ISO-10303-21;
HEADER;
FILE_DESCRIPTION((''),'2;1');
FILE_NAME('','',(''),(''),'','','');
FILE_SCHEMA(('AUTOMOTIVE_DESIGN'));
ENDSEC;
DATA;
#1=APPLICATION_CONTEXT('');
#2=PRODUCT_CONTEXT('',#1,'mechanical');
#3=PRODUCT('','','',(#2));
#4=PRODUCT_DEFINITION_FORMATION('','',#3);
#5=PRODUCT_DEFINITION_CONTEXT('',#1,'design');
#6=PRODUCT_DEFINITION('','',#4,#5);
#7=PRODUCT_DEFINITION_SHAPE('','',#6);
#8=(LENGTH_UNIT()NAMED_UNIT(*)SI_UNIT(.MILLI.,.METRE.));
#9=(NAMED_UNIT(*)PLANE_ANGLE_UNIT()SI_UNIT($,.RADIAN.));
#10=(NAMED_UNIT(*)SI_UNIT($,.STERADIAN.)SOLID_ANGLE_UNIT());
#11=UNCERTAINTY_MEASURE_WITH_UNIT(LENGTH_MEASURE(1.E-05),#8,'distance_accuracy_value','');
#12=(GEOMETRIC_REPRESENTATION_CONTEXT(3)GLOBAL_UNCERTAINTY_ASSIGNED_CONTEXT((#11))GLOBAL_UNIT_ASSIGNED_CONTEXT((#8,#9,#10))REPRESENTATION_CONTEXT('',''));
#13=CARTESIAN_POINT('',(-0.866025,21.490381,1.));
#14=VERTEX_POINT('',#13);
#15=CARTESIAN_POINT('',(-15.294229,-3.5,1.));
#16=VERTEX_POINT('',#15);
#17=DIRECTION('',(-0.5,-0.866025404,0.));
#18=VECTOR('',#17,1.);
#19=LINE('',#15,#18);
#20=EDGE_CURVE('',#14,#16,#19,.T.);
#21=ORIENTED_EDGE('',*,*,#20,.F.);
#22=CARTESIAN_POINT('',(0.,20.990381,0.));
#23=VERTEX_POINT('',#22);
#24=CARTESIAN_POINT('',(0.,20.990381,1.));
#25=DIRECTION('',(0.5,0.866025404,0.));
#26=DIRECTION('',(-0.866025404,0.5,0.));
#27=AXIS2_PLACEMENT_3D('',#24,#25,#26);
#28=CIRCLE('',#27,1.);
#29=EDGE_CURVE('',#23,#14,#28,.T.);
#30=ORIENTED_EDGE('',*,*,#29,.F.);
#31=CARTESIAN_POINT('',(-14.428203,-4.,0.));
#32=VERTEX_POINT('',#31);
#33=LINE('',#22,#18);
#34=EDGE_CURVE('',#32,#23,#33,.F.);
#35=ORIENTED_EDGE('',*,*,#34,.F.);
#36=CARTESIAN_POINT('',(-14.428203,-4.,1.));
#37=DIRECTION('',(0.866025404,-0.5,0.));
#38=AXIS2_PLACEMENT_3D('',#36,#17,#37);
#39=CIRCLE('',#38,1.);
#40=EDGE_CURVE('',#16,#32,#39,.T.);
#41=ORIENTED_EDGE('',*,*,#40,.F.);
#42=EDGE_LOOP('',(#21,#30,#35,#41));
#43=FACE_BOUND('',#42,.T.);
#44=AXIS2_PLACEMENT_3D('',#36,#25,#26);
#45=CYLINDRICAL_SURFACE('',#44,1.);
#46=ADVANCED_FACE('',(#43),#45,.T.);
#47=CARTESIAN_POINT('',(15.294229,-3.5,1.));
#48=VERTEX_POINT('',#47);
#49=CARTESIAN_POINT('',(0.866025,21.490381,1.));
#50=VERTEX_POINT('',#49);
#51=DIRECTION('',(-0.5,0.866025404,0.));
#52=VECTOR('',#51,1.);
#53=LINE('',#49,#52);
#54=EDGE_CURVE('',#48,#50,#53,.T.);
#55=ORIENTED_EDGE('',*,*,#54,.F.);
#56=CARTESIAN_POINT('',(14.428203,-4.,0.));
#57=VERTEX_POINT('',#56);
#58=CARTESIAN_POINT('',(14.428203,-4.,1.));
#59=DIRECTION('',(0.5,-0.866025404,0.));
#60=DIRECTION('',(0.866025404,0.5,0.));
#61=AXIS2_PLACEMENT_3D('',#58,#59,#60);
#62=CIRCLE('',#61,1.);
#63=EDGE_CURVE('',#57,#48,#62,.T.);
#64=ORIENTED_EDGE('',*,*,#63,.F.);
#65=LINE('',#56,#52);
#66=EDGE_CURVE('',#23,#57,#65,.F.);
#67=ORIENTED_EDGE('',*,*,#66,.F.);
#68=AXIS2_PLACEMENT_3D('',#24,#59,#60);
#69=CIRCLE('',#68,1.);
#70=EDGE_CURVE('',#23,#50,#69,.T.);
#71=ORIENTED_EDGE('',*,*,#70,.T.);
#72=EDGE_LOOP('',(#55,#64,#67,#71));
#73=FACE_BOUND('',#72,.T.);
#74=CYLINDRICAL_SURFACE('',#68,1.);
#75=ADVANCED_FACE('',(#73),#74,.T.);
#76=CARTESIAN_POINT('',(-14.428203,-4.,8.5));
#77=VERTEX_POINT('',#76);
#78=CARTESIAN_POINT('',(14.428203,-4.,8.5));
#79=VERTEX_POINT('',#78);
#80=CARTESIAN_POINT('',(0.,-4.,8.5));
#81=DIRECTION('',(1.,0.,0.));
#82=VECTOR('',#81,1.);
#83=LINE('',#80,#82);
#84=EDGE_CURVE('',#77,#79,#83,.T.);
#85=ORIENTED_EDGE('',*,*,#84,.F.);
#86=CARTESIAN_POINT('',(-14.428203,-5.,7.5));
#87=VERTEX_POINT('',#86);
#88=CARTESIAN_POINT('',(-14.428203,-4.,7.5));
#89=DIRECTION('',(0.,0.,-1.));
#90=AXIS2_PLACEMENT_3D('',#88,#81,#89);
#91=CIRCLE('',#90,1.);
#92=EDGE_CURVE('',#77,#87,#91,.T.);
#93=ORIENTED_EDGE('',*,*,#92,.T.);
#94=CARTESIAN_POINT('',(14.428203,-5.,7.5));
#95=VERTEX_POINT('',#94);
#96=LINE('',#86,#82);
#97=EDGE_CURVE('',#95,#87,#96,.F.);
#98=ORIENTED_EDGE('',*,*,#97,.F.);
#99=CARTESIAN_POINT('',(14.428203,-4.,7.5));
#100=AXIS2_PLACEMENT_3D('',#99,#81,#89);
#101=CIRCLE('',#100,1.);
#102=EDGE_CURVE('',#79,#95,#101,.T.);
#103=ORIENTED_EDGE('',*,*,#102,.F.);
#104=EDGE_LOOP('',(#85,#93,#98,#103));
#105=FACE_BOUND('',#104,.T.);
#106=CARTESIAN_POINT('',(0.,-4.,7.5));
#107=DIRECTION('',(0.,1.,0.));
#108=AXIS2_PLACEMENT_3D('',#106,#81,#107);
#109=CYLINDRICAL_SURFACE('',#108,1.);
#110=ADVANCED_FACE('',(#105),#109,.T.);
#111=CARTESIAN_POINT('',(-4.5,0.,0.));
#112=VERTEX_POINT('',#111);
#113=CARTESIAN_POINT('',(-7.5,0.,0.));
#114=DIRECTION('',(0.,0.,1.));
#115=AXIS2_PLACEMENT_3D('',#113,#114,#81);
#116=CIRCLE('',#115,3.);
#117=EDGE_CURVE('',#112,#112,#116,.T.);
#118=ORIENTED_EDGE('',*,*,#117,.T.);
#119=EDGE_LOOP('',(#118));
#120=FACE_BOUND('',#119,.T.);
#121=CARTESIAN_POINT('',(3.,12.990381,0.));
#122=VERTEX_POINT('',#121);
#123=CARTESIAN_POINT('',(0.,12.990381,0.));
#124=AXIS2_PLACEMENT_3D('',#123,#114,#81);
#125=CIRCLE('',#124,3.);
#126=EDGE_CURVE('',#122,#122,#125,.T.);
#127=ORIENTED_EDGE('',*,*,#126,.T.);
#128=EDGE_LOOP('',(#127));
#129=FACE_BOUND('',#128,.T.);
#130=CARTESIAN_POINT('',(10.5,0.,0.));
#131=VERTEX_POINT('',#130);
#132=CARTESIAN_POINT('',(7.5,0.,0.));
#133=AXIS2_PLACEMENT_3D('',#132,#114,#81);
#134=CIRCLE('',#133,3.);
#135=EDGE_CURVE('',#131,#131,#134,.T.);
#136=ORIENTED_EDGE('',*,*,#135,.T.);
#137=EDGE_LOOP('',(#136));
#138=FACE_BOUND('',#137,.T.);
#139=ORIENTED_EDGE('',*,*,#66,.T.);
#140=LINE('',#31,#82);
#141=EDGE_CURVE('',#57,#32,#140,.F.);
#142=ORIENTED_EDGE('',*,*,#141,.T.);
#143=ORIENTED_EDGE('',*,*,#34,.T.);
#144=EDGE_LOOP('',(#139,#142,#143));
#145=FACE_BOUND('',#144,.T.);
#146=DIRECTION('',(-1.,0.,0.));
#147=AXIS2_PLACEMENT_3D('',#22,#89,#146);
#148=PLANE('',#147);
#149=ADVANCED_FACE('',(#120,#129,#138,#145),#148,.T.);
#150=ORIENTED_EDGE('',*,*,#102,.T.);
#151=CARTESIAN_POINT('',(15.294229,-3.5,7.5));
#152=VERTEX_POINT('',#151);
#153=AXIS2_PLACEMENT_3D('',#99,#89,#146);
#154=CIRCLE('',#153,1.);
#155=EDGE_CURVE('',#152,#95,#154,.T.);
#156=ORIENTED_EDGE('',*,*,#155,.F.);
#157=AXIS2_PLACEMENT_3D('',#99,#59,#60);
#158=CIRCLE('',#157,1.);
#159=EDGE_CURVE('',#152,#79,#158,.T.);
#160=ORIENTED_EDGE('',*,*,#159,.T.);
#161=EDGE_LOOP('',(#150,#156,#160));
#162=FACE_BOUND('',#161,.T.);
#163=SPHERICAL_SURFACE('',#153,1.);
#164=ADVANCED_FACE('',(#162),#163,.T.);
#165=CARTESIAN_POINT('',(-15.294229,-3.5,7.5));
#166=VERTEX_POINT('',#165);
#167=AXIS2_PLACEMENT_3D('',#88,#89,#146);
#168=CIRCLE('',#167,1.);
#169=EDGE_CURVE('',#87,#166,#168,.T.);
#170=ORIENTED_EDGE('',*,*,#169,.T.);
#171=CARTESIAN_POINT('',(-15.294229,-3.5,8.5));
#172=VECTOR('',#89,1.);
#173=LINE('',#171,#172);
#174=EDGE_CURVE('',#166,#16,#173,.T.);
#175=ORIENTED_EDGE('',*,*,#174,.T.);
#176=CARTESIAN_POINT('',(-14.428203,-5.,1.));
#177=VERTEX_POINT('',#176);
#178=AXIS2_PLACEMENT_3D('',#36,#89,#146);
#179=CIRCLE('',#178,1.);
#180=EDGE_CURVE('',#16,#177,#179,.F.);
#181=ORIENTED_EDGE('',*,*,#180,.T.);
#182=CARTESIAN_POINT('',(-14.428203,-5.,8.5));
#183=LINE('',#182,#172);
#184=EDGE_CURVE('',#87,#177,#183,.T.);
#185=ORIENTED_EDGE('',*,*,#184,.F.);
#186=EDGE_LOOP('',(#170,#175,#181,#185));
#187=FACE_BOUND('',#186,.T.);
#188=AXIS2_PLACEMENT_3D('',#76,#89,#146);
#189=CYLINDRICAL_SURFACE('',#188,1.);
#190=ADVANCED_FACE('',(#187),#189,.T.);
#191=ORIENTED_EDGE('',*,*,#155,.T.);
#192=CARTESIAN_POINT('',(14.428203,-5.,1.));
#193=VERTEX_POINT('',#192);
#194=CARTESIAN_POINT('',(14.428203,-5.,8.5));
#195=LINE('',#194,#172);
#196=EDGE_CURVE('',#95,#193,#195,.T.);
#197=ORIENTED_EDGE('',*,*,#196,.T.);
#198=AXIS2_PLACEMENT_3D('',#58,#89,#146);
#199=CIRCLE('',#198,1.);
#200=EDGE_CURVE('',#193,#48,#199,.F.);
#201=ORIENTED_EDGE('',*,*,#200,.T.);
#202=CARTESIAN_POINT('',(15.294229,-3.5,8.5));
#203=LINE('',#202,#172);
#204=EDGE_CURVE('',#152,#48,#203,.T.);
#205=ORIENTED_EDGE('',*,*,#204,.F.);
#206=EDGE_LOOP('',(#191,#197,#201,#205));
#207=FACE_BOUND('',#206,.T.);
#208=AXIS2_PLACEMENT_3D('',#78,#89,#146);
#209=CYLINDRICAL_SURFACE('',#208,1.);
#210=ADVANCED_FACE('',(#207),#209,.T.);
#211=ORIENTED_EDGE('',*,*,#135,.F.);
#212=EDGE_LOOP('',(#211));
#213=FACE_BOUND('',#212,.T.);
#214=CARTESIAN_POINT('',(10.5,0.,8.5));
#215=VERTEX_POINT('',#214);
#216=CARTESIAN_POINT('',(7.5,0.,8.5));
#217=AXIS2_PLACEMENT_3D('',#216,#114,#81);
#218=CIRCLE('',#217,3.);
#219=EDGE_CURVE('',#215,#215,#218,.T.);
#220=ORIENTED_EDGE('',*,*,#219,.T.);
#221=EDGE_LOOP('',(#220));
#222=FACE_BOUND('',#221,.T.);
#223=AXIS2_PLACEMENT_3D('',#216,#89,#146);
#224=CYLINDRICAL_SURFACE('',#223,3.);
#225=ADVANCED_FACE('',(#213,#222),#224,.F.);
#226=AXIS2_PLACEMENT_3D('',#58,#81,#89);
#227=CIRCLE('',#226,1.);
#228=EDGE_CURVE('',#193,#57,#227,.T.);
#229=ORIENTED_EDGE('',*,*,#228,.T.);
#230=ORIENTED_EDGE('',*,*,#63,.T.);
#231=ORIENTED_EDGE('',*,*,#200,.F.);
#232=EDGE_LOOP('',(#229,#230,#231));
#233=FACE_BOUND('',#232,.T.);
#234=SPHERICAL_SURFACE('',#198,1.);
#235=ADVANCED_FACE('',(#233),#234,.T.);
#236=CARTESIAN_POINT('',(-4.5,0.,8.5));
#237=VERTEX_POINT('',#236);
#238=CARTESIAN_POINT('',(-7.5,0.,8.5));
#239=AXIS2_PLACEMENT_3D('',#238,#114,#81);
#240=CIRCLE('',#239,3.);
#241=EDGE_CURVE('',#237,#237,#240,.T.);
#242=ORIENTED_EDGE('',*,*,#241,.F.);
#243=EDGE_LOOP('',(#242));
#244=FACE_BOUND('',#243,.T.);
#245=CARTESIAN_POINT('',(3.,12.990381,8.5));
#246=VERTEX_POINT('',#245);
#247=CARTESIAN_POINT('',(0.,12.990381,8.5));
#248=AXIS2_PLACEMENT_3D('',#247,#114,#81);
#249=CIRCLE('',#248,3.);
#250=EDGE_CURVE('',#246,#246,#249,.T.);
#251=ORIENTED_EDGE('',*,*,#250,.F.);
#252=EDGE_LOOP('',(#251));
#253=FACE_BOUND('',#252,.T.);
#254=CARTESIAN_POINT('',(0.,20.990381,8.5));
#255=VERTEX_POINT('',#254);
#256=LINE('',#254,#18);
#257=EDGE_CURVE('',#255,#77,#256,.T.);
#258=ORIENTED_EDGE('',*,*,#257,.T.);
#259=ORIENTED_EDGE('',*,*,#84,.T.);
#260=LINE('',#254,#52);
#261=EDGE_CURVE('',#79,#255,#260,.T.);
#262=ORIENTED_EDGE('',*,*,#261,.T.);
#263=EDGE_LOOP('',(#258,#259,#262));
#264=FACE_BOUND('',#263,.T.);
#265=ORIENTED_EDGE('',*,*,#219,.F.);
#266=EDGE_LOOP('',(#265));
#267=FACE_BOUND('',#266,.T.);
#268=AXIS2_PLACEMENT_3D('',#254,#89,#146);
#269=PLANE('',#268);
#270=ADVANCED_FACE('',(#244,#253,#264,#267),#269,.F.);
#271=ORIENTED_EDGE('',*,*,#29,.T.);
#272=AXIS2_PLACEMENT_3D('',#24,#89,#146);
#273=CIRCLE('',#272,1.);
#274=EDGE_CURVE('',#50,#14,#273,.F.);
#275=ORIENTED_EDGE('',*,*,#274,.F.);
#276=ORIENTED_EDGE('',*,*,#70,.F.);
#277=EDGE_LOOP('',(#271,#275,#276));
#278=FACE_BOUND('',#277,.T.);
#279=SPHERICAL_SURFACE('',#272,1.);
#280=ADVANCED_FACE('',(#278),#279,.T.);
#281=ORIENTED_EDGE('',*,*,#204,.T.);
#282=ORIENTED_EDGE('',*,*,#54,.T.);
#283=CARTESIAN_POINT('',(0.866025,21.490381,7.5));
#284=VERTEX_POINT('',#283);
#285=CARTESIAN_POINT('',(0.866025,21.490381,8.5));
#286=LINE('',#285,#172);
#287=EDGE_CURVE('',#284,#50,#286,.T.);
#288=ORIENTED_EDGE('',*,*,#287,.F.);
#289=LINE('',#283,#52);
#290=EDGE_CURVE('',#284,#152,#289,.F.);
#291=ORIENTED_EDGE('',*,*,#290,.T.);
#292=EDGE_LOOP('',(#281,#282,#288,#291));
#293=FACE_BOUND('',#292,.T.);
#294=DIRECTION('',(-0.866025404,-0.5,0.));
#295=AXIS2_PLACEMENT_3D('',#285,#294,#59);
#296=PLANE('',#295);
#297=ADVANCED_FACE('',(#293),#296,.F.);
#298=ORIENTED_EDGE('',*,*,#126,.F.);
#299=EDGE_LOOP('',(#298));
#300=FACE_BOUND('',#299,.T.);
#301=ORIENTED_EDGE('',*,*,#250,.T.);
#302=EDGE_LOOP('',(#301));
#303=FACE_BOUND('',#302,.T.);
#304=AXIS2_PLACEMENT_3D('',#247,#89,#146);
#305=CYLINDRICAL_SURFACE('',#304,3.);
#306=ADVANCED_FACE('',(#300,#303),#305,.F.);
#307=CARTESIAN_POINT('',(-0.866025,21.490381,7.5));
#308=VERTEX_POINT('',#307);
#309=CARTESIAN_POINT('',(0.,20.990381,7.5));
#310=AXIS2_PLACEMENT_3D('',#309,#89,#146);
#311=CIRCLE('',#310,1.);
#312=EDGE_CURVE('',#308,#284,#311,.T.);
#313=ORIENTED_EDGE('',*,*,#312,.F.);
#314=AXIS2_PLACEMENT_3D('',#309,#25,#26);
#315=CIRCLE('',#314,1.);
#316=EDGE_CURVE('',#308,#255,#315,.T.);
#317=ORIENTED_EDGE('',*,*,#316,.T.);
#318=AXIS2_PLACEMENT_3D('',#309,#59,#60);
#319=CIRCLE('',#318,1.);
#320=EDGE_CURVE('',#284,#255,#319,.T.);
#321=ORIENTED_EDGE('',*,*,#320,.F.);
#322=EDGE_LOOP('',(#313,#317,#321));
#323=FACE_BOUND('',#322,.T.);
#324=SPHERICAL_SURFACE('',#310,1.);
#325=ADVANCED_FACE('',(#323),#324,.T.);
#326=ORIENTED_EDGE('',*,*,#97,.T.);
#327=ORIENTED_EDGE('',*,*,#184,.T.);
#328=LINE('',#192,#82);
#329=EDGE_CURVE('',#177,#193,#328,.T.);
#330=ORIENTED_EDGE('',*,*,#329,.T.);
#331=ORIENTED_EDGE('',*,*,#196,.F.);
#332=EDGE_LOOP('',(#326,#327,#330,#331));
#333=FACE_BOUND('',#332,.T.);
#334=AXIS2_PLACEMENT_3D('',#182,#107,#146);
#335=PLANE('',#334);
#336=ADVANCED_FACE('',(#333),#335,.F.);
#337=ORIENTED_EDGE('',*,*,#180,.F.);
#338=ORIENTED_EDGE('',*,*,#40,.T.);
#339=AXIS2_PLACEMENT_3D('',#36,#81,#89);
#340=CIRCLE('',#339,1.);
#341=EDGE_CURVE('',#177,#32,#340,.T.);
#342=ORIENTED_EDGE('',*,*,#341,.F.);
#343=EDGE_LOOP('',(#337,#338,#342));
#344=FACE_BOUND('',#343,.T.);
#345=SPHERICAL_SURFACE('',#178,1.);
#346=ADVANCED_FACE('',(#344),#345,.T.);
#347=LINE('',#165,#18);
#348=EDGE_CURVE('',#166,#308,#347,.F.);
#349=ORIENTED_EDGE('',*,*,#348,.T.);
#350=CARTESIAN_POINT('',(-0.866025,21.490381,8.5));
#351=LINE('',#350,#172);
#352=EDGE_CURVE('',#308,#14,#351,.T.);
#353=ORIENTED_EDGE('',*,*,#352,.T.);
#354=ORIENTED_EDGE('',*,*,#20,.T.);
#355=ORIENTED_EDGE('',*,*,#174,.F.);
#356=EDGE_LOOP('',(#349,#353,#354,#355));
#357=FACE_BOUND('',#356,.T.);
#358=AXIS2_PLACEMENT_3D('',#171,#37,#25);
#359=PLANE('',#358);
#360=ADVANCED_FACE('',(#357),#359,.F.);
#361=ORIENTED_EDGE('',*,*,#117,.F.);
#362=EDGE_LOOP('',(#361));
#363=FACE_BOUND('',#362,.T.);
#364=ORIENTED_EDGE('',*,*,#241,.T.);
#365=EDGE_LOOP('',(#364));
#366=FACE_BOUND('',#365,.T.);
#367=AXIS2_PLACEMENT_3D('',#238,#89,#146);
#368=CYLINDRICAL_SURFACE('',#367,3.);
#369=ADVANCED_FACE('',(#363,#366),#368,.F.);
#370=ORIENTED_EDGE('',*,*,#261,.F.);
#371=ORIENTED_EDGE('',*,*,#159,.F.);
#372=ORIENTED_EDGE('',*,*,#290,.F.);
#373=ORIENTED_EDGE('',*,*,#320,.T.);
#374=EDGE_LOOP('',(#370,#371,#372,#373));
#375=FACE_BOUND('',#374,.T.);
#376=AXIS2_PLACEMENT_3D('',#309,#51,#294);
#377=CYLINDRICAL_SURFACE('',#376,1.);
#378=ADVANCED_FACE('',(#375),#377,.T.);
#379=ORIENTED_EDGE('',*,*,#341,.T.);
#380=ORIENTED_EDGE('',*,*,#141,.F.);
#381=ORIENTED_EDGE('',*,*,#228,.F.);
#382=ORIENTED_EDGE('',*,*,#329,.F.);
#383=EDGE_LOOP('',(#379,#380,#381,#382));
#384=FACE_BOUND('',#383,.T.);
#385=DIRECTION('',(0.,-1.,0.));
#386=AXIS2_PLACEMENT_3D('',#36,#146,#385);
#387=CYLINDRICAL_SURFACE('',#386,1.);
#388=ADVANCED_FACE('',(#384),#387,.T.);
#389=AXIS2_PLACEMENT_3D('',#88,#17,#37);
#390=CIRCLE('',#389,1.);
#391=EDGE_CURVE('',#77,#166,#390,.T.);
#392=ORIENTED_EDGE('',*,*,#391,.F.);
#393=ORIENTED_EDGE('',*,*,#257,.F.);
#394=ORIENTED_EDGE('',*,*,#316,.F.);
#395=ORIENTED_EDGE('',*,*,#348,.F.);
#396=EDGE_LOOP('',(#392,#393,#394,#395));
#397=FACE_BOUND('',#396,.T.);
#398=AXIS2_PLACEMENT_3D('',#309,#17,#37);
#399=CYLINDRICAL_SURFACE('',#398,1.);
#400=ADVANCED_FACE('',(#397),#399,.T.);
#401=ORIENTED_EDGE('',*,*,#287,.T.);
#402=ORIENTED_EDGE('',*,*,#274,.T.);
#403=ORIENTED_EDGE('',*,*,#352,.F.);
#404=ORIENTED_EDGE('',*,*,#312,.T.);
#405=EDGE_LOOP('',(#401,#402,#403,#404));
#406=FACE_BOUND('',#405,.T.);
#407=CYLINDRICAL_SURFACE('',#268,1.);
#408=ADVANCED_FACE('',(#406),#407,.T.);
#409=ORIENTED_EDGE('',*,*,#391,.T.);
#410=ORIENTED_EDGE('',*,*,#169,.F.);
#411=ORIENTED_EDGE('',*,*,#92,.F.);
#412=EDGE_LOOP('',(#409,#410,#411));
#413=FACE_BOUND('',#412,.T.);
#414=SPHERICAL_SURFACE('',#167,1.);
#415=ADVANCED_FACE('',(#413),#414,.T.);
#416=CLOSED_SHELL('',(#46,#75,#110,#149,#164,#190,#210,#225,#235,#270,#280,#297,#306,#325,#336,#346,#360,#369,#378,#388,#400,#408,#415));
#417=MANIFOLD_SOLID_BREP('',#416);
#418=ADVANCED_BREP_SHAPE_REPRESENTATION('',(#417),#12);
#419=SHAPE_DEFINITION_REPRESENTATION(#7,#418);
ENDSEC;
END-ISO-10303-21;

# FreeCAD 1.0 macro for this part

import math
import FreeCAD as App
import Part
import Sketcher

V = App.Vector
Q = App.Units.Quantity


def edges_at(feature, points):
    """Names of the edges that pass closest to the given points."""
    edges = feature.Shape.Edges
    near = lambda p: min(range(len(edges)), key=lambda i: edges[i].distToShape(Part.Vertex(*p))[0])
    return sorted({f"Edge{near(p) + 1}" for p in points})

doc = App.newDocument("Part")
params = doc.addObject("Spreadsheet::Sheet", "Params")
for row, (alias, value) in enumerate([
    ("sketch1_diameter", "6 mm"),
    ("sketch1_radius", "1 mm"),
    ("pad1_length", "8.5 mm"),
    ("fillet_radius", "1 mm"),
], start=1):
    params.set(f"A{row}", alias)
    params.set(f"B{row}", "=" + value)
    params.setAlias(f"B{row}", alias)

body = doc.addObject("PartDesign::Body", "Body")

sketch1 = body.newObject("Sketcher::SketchObject", "Sketch")
sketch1.AttachmentSupport = (doc.getObject("XY_Plane"), [""])
sketch1.MapMode = "FlatFace"
sketch1.addGeometry([
    Part.LineSegment(V(15.294229, -3.5, 0), V(0.866025, 21.490381, 0)),
    Part.ArcOfCircle(Part.Circle(V(0, 20.990381, 0), V(0, 0, 1), 1), math.radians(30), math.radians(150)),
    Part.LineSegment(V(-0.866025, 21.490381, 0), V(-15.294229, -3.5, 0)),
    Part.ArcOfCircle(Part.Circle(V(-14.428203, -4, 0), V(0, 0, 1), 1), math.radians(150), math.radians(270)),
    Part.LineSegment(V(-14.428203, -5, 0), V(14.428203, -5, 0)),
    Part.ArcOfCircle(Part.Circle(V(14.428203, -4, 0), V(0, 0, 1), 1), math.radians(-90), math.radians(30)),
    Part.Circle(V(7.5, 0, 0), V(0, 0, 1), 3),
    Part.Circle(V(-7.5, 0, 0), V(0, 0, 1), 3),
    Part.Circle(V(0, 12.990381, 0), V(0, 0, 1), 3),
], False)
sketch1.addConstraint([
    Sketcher.Constraint("Tangent", 0, 2, 1, 1),
    Sketcher.Constraint("Tangent", 1, 2, 2, 1),
    Sketcher.Constraint("Tangent", 2, 2, 3, 1),
    Sketcher.Constraint("Tangent", 3, 2, 4, 1),
    Sketcher.Constraint("Tangent", 4, 2, 5, 1),
    Sketcher.Constraint("Tangent", 5, 2, 0, 1),
    Sketcher.Constraint("Horizontal", 4),
    Sketcher.Constraint("Equal", 1, 3),
    Sketcher.Constraint("Equal", 3, 5),
    Sketcher.Constraint("Equal", 6, 7),
    Sketcher.Constraint("Equal", 7, 8),
    Sketcher.Constraint("Symmetric", 6, 3, 7, 3, -1, 1),
    Sketcher.Constraint("Symmetric", 0, 2, 1, 2, -2),
    Sketcher.Constraint("PointOnObject", 6, 3, -1),
    Sketcher.Constraint("PointOnObject", 8, 3, -2),
    Sketcher.Constraint("Diameter", 6, Q("6 mm")),
    Sketcher.Constraint("Radius", 1, Q("1 mm")),
    Sketcher.Constraint("Angle", 0, Q("120 deg")),
    Sketcher.Constraint("DistanceY", 3, 3, -1, 1, Q("4 mm")),
    Sketcher.Constraint("DistanceX", 7, 3, 6, 3, Q("15 mm")),
    Sketcher.Constraint("DistanceY", 8, 3, 1, 3, Q("8 mm")),
    Sketcher.Constraint("DistanceX", 4, 1, 4, 2, Q("28.856406 mm")),
])
sketch1.setExpression("Constraints[15]", "Params.sketch1_diameter")
sketch1.setExpression("Constraints[16]", "Params.sketch1_radius")
pad1 = body.newObject("PartDesign::Pad", "Pad")
pad1.Profile = sketch1
pad1.setExpression("Length", "Params.pad1_length")
doc.recompute()

fillet = body.newObject("PartDesign::Fillet", "Fillet")
fillet.Base = (pad1, edges_at(pad1, [
    (-15.294, -4.5, 8.5),
    (0, -5, 8.5),
    (15.294, -4.5, 8.5),
    (8.08, 8.995, 8.5),
    (0, 21.99, 8.5),
    (8.08, 8.995, 0),
    (15.294, -4.5, 0),
    (0, -5, 0),
    (-15.294, -4.5, 0),
    (-8.08, 8.995, 0),
    (0, 21.99, 0),
    (-8.08, 8.995, 8.5),
]))
fillet.setExpression("Radius", "Params.fillet_radius")

doc.recompute()
